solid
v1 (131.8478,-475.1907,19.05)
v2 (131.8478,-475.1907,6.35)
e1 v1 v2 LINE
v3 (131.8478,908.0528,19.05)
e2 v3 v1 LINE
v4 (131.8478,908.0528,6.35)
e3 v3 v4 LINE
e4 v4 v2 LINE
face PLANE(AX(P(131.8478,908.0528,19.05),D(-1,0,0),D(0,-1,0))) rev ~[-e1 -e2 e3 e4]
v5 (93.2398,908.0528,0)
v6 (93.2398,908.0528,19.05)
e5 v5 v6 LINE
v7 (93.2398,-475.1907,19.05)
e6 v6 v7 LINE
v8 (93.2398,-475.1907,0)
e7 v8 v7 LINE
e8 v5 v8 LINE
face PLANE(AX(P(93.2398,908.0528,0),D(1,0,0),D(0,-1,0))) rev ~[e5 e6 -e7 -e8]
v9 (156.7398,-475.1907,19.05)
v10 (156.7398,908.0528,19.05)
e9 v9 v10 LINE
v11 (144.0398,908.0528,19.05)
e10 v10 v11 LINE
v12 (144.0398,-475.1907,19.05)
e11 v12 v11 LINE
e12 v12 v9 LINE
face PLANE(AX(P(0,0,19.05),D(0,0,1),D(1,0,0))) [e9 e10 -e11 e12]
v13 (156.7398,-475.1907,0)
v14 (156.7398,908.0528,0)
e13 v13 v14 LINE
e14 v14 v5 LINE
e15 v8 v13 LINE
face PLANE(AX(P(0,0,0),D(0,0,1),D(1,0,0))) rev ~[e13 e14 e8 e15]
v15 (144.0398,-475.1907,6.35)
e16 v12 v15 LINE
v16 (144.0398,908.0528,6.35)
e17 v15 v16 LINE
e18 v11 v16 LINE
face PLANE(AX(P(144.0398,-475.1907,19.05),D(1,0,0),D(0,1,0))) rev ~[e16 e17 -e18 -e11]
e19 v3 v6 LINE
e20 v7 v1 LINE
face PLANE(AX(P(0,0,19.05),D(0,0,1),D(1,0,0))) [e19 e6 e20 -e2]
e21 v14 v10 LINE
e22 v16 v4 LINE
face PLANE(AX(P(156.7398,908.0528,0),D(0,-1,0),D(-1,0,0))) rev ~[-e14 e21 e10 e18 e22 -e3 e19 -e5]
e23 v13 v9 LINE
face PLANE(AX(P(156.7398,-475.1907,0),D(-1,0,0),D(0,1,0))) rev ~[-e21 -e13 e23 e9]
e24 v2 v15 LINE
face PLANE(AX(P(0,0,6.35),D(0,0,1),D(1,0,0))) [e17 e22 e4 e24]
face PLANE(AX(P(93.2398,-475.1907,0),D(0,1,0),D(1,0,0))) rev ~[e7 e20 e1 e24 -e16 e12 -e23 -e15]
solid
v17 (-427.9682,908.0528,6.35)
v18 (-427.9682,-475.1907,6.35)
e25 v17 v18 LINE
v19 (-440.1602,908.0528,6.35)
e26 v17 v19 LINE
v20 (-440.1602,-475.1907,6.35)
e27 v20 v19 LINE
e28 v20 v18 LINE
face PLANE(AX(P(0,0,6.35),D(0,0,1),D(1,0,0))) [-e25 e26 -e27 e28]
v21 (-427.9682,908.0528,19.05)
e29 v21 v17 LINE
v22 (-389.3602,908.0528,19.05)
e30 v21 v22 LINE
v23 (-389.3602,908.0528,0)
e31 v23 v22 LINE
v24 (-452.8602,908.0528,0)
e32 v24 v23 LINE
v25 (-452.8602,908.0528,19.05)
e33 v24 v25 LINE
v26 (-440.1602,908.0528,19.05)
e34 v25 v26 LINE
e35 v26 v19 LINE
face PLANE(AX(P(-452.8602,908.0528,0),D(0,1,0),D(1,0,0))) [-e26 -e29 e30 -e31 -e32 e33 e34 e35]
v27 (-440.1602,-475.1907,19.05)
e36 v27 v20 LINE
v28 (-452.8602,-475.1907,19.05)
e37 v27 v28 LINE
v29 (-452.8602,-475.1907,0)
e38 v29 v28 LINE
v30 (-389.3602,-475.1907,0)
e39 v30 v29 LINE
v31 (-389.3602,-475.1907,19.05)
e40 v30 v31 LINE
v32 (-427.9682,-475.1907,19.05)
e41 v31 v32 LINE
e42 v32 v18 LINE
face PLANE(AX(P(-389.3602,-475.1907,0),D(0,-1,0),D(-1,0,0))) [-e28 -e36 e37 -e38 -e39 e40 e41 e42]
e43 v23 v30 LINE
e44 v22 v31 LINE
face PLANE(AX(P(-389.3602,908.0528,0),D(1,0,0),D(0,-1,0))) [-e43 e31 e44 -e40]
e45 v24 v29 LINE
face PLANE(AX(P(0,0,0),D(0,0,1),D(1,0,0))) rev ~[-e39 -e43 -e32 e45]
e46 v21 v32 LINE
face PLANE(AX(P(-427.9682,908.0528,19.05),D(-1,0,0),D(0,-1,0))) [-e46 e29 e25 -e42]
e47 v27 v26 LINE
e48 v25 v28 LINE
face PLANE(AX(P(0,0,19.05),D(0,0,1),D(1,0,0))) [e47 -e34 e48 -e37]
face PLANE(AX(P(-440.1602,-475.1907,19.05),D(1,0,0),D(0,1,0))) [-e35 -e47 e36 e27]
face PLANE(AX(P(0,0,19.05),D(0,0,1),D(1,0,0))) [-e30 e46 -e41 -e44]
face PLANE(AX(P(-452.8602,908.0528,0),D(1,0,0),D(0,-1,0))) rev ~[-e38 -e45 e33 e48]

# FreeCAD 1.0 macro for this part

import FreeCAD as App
import Part
import Sketcher

V = App.Vector
Q = App.Units.Quantity

doc = App.newDocument("Part")
body = doc.addObject("PartDesign::Body", "Body")
body.AllowCompound = True

# Sketch on XY plane
sketch1 = body.newObject("Sketcher::SketchObject", "Sketch")
sketch1.AttachmentSupport = (doc.getObject("XY_Plane"), [""])
sketch1.MapMode = "FlatFace"
sketch1.addGeometry([
    Part.LineSegment(V(-389, 908, 0), V(-453, 908, 0)),  # 0
    Part.LineSegment(V(-453, 908, 0), V(-453, -475, 0)),  # 1
    Part.LineSegment(V(-453, -475, 0), V(-389, -475, 0)),  # 2
    Part.LineSegment(V(-389, -475, 0), V(-389, 908, 0)),  # 3
    Part.LineSegment(V(93, -475, 0), V(157, -475, 0)),  # 4
    Part.LineSegment(V(157, -475, 0), V(157, 908, 0)),  # 5
    Part.LineSegment(V(157, 908, 0), V(93, 908, 0)),  # 6
    Part.LineSegment(V(93, 908, 0), V(93, -475, 0)),  # 7
], False)
sketch1.addConstraint([
    Sketcher.Constraint("Coincident", 0, 2, 1, 1),
    Sketcher.Constraint("Coincident", 1, 2, 2, 1),
    Sketcher.Constraint("Coincident", 2, 2, 3, 1),
    Sketcher.Constraint("Coincident", 3, 2, 0, 1),
    Sketcher.Constraint("Coincident", 4, 2, 5, 1),
    Sketcher.Constraint("Coincident", 5, 2, 6, 1),
    Sketcher.Constraint("Coincident", 6, 2, 7, 1),
    Sketcher.Constraint("Coincident", 7, 2, 4, 1),
    Sketcher.Constraint("Horizontal", 0),
    Sketcher.Constraint("Vertical", 1),
    Sketcher.Constraint("Horizontal", 2),
    Sketcher.Constraint("Vertical", 3),
    Sketcher.Constraint("Horizontal", 4),
    Sketcher.Constraint("Vertical", 5),
    Sketcher.Constraint("Horizontal", 6),
    Sketcher.Constraint("Vertical", 7),
    Sketcher.Constraint("Horizontal", 2, 2, 4, 2),
    Sketcher.Constraint("Horizontal", 3, 2, 5, 2),
    Sketcher.Constraint("Equal", 2, 4),
    Sketcher.Constraint("DistanceX", 0, 2, 0, 1, Q("2.5 in")),
    Sketcher.Constraint("DistanceX", 1, 2, 4, 2, Q("24 in")),
    Sketcher.Constraint("DistanceY", 1, 2, 1, 1, Q("54.4584 in")),
    Sketcher.Constraint("DistanceY", -1, 1, 0, 2, Q("35.7501 in")),
    Sketcher.Constraint("DistanceX", 0, 2, -1, 1, 452.8602),
])
pad1 = body.newObject("PartDesign::Pad", "Pad")
pad1.Profile = sketch1
pad1.Length = Q("0.75 in")

# Sketch on XY plane
sketch2 = body.newObject("Sketcher::SketchObject", "Sketch001")
sketch2.AttachmentSupport = (doc.getObject("XY_Plane"), [""])
sketch2.MapMode = "FlatFace"
sketch2.AttachmentOffset = App.Placement(V(0, 0, 0.75 * 25.4), App.Rotation())
sketch2.addGeometry([
    Part.LineSegment(V(-428, 908, 0), V(-440, 908, 0)),  # 0
    Part.LineSegment(V(-440, 908, 0), V(-440, -475, 0)),  # 1
    Part.LineSegment(V(-440, -475, 0), V(-428, -475, 0)),  # 2
    Part.LineSegment(V(-428, -475, 0), V(-428, 908, 0)),  # 3
    Part.LineSegment(V(144, -475, 0), V(144, 908, 0)),  # 4
    Part.LineSegment(V(144, 908, 0), V(132, 908, 0)),  # 5
    Part.LineSegment(V(132, 908, 0), V(132, -475, 0)),  # 6
    Part.LineSegment(V(132, -475, 0), V(144, -475, 0)),  # 7
], False)
sketch2.addConstraint([
    Sketcher.Constraint("Coincident", 0, 2, 1, 1),
    Sketcher.Constraint("Coincident", 1, 2, 2, 1),
    Sketcher.Constraint("Coincident", 2, 2, 3, 1),
    Sketcher.Constraint("Coincident", 3, 2, 0, 1),
    Sketcher.Constraint("Coincident", 4, 2, 5, 1),
    Sketcher.Constraint("Coincident", 5, 2, 6, 1),
    Sketcher.Constraint("Coincident", 6, 2, 7, 1),
    Sketcher.Constraint("Coincident", 7, 2, 4, 1),
    Sketcher.Constraint("Horizontal", 0),
    Sketcher.Constraint("Vertical", 1),
    Sketcher.Constraint("Horizontal", 2),
    Sketcher.Constraint("Vertical", 3),
    Sketcher.Constraint("Vertical", 4),
    Sketcher.Constraint("Horizontal", 5),
    Sketcher.Constraint("Vertical", 6),
    Sketcher.Constraint("Horizontal", 7),
    Sketcher.Constraint("Horizontal", 3, 2, 4, 2),
    Sketcher.Constraint("Horizontal", 2, 2, 6, 2),
    Sketcher.Constraint("Equal", 2, 5),
    Sketcher.Constraint("DistanceX", 0, 2, 0, 1, Q("0.48 in")),
    Sketcher.Constraint("DistanceX", 0, 2, 4, 2, Q("23 in")),
    Sketcher.Constraint("DistanceY", 1, 2, 1, 1, Q("54.4584 in")),
    Sketcher.Constraint("DistanceY", -1, 1, 0, 2, Q("35.7501 in")),
    Sketcher.Constraint("DistanceX", 0, 2, -1, 1, 440.1602),
])
pocket1 = body.newObject("PartDesign::Pocket", "Pocket")
pocket1.Profile = sketch2
pocket1.Length = Q("0.5 in")

doc.recompute()
